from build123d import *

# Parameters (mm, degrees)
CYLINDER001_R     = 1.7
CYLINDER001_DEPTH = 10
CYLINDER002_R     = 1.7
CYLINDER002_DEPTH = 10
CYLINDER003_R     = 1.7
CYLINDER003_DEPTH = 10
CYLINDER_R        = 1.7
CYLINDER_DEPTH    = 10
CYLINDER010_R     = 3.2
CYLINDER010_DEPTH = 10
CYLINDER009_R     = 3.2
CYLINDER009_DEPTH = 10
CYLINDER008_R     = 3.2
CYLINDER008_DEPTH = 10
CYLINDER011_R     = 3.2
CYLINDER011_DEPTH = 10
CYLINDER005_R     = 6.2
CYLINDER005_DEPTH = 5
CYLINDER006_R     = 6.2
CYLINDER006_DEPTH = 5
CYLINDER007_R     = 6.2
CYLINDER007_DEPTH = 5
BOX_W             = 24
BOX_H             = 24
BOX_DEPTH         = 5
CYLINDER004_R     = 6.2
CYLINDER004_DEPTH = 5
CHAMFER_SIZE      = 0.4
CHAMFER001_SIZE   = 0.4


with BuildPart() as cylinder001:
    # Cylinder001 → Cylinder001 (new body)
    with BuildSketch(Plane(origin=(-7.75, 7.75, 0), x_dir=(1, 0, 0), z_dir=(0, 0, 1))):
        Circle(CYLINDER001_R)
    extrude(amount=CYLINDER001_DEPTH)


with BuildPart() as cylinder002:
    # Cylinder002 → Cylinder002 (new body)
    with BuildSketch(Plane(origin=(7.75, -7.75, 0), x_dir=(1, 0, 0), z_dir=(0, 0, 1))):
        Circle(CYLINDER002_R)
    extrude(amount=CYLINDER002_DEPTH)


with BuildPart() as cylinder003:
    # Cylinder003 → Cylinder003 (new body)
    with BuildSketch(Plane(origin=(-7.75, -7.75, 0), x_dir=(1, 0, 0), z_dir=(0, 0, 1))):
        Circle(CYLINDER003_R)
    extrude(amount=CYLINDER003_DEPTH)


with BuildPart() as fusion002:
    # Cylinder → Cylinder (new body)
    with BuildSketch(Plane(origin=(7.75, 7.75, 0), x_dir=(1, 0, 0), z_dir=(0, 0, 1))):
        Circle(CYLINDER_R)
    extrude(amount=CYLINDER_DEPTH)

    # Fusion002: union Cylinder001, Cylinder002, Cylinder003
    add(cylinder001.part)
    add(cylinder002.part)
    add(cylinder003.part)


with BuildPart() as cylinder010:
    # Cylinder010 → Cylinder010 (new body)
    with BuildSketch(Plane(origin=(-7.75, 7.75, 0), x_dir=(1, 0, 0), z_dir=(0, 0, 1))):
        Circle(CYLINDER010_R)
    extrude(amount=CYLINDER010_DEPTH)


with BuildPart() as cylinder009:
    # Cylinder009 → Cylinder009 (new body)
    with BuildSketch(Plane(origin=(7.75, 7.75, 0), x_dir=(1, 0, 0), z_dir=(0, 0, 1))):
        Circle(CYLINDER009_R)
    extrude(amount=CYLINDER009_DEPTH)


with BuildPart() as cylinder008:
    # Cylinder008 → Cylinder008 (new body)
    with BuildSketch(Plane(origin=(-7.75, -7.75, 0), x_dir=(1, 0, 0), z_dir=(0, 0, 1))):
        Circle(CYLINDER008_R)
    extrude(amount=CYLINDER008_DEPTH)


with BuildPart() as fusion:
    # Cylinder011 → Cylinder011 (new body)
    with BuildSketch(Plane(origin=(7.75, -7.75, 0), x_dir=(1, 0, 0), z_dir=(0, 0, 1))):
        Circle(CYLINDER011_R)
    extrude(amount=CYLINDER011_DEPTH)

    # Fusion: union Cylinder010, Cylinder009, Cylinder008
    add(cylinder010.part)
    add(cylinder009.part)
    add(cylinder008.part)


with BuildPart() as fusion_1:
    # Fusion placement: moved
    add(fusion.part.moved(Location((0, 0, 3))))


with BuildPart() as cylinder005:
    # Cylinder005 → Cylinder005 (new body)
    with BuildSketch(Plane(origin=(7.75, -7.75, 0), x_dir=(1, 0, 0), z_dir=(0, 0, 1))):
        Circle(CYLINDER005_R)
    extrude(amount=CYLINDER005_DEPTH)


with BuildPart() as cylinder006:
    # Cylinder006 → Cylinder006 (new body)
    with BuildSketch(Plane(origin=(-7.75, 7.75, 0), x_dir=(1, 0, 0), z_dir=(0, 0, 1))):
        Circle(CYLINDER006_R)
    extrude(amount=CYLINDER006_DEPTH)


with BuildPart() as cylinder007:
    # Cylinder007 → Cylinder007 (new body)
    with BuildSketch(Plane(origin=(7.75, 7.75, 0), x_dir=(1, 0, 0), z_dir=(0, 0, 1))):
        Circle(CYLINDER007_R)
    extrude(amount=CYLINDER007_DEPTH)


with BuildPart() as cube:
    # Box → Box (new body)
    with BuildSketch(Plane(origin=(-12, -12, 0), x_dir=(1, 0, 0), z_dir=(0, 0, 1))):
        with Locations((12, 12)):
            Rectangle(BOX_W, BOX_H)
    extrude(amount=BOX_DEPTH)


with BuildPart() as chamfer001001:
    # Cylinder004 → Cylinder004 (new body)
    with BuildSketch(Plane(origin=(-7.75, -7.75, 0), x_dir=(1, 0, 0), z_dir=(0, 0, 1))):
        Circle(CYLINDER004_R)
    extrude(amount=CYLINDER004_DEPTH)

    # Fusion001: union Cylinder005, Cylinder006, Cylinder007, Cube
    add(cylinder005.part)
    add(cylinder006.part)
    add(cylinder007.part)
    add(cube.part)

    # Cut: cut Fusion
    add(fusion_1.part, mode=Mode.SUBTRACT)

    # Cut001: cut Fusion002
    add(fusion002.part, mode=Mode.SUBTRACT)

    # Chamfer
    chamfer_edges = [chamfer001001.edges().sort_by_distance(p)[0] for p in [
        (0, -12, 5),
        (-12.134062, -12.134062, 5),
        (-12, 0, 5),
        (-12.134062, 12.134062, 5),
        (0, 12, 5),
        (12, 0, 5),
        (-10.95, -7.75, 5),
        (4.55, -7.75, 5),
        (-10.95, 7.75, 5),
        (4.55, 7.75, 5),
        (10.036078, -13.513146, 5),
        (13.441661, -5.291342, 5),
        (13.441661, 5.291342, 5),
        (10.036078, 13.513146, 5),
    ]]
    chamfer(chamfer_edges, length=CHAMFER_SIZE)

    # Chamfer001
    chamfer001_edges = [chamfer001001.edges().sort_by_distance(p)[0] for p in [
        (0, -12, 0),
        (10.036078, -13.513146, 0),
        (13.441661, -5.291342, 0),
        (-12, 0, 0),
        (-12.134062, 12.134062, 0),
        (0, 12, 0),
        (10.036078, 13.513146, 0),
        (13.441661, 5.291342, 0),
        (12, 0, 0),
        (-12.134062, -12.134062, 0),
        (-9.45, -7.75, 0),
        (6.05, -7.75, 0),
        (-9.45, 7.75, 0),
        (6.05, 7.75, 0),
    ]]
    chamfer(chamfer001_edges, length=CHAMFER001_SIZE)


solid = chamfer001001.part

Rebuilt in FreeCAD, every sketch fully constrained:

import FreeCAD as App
import Part
import Sketcher
from FreeCAD import Vector
Q = App.Units.Quantity


def edges_at(feature, points):
    """Names of the edges that pass closest to the given points."""
    edges = feature.Shape.Edges
    near = lambda p: min(range(len(edges)), key=lambda i: edges[i].distToShape(Part.Vertex(*p))[0])
    return sorted({f"Edge{near(p) + 1}" for p in points})


def add_polygon(sketch, points):
    """Adds a closed chain of lines whose ends are joined by coincident constraints."""
    first, n = sketch.GeometryCount, len(points)
    for a, b in zip(points, points[1:] + points[:1]):
        sketch.addGeometry(Part.LineSegment(App.Vector(*a, 0), App.Vector(*b, 0)), False)
    for i in range(n):
        sketch.addConstraint(Sketcher.Constraint("Coincident", first + i, 2, first + (i + 1) % n, 1))

doc = App.newDocument("Part")
params = doc.addObject("Spreadsheet::Sheet", "Params")
for row, (alias, value) in enumerate([
    ("sketch1_diameter", "3.4 mm"),
    ("pad1_length", "10 mm"),
    ("sketch2_diameter", "3.4 mm"),
    ("pad2_length", "10 mm"),
    ("sketch3_diameter", "3.4 mm"),
    ("pad3_length", "10 mm"),
    ("sketch4_diameter", "3.4 mm"),
    ("pad4_length", "10 mm"),
    ("sketch5_diameter", "6.4 mm"),
    ("pad5_length", "10 mm"),
    ("sketch6_diameter", "6.4 mm"),
    ("pad6_length", "10 mm"),
    ("sketch7_diameter", "6.4 mm"),
    ("pad7_length", "10 mm"),
    ("sketch8_diameter", "6.4 mm"),
    ("pad8_length", "10 mm"),
    ("sketch9_diameter", "12.4 mm"),
    ("pad9_length", "5 mm"),
    ("sketch10_diameter", "12.4 mm"),
    ("pad10_length", "5 mm"),
    ("sketch11_diameter", "12.4 mm"),
    ("pad11_length", "5 mm"),
    ("sketch12_width", "24 mm"),
    ("pad12_length", "5 mm"),
    ("sketch13_diameter", "12.4 mm"),
    ("pad13_length", "5 mm"),
    ("chamfer_size", "0.4 mm"),
    ("chamfer2_size", "0.4 mm"),
], start=1):
    params.set(f"A{row}", alias)
    params.set(f"B{row}", "=" + value)
    params.setAlias(f"B{row}", alias)

body = doc.addObject("PartDesign::Body", "Body")

sketch1 = body.newObject("Sketcher::SketchObject", "Sketch")
sketch1.AttachmentSupport = (doc.getObject("XY_Plane"), [""])
sketch1.MapMode = "FlatFace"
sketch1.addGeometry(Part.Circle(Vector(-7.8, 7.8, 0), Vector(0, 0, 1), 1.7), False)
sketch1.addConstraint([
    Sketcher.Constraint("Diameter", 0, Q("3.4 mm")),
    Sketcher.Constraint("DistanceX", 0, 3, -1, 1, Q("7.75 mm")),
    Sketcher.Constraint("DistanceY", -1, 1, 0, 3, Q("7.75 mm")),
])
sketch1.setExpression("Constraints[0]", "Params.sketch1_diameter")
pad1 = body.newObject("PartDesign::Pad", "Pad")
pad1.Profile = sketch1
pad1.setExpression("Length", "Params.pad1_length")
body2 = doc.addObject("PartDesign::Body", "Body001")

sketch2 = body2.newObject("Sketcher::SketchObject", "Sketch001")
sketch2.AttachmentSupport = (doc.getObject("XY_Plane001"), [""])
sketch2.MapMode = "FlatFace"
sketch2.addGeometry(Part.Circle(Vector(7.8, -7.8, 0), Vector(0, 0, 1), 1.7), False)
sketch2.addConstraint([
    Sketcher.Constraint("Diameter", 0, Q("3.4 mm")),
    Sketcher.Constraint("DistanceX", -1, 1, 0, 3, Q("7.75 mm")),
    Sketcher.Constraint("DistanceY", 0, 3, -1, 1, Q("7.75 mm")),
])
sketch2.setExpression("Constraints[0]", "Params.sketch2_diameter")
pad2 = body2.newObject("PartDesign::Pad", "Pad001")
pad2.Profile = sketch2
pad2.setExpression("Length", "Params.pad2_length")
body3 = doc.addObject("PartDesign::Body", "Body002")

sketch3 = body3.newObject("Sketcher::SketchObject", "Sketch002")
sketch3.AttachmentSupport = (doc.getObject("XY_Plane002"), [""])
sketch3.MapMode = "FlatFace"
sketch3.addGeometry(Part.Circle(Vector(-7.8, -7.8, 0), Vector(0, 0, 1), 1.7), False)
sketch3.addConstraint([
    Sketcher.Constraint("Diameter", 0, Q("3.4 mm")),
    Sketcher.Constraint("DistanceX", 0, 3, -1, 1, Q("7.75 mm")),
    Sketcher.Constraint("DistanceY", 0, 3, -1, 1, Q("7.75 mm")),
])
sketch3.setExpression("Constraints[0]", "Params.sketch3_diameter")
pad3 = body3.newObject("PartDesign::Pad", "Pad002")
pad3.Profile = sketch3
pad3.setExpression("Length", "Params.pad3_length")
body4 = doc.addObject("PartDesign::Body", "Body003")
body4.AllowCompound = True

sketch4 = body4.newObject("Sketcher::SketchObject", "Sketch003")
sketch4.AttachmentSupport = (doc.getObject("XY_Plane003"), [""])
sketch4.MapMode = "FlatFace"
sketch4.addGeometry(Part.Circle(Vector(7.8, 7.8, 0), Vector(0, 0, 1), 1.7), False)
sketch4.addConstraint([
    Sketcher.Constraint("Diameter", 0, Q("3.4 mm")),
    Sketcher.Constraint("DistanceX", -1, 1, 0, 3, Q("7.75 mm")),
    Sketcher.Constraint("DistanceY", -1, 1, 0, 3, Q("7.75 mm")),
])
sketch4.setExpression("Constraints[0]", "Params.sketch4_diameter")
pad4 = body4.newObject("PartDesign::Pad", "Pad003")
pad4.Profile = sketch4
pad4.setExpression("Length", "Params.pad4_length")
doc.recompute()

boolean = body4.newObject("PartDesign::Boolean", "Boolean")
boolean.Type = "Fuse"
boolean.addObjects([body])
doc.recompute()

boolean2 = body4.newObject("PartDesign::Boolean", "Boolean001")
boolean2.Type = "Fuse"
boolean2.addObjects([body2])
doc.recompute()

boolean3 = body4.newObject("PartDesign::Boolean", "Boolean002")
boolean3.Type = "Fuse"
boolean3.addObjects([body3])
body5 = doc.addObject("PartDesign::Body", "Body004")

sketch5 = body5.newObject("Sketcher::SketchObject", "Sketch004")
sketch5.AttachmentSupport = (doc.getObject("XY_Plane004"), [""])
sketch5.MapMode = "FlatFace"
sketch5.addGeometry(Part.Circle(Vector(-7.8, 7.8, 0), Vector(0, 0, 1), 3.2), False)
sketch5.addConstraint([
    Sketcher.Constraint("Diameter", 0, Q("6.4 mm")),
    Sketcher.Constraint("DistanceX", 0, 3, -1, 1, Q("7.75 mm")),
    Sketcher.Constraint("DistanceY", -1, 1, 0, 3, Q("7.75 mm")),
])
sketch5.setExpression("Constraints[0]", "Params.sketch5_diameter")
pad5 = body5.newObject("PartDesign::Pad", "Pad004")
pad5.Profile = sketch5
pad5.setExpression("Length", "Params.pad5_length")
body6 = doc.addObject("PartDesign::Body", "Body005")

sketch6 = body6.newObject("Sketcher::SketchObject", "Sketch005")
sketch6.AttachmentSupport = (doc.getObject("XY_Plane005"), [""])
sketch6.MapMode = "FlatFace"
sketch6.addGeometry(Part.Circle(Vector(7.8, 7.8, 0), Vector(0, 0, 1), 3.2), False)
sketch6.addConstraint([
    Sketcher.Constraint("Diameter", 0, Q("6.4 mm")),
    Sketcher.Constraint("DistanceX", -1, 1, 0, 3, Q("7.75 mm")),
    Sketcher.Constraint("DistanceY", -1, 1, 0, 3, Q("7.75 mm")),
])
sketch6.setExpression("Constraints[0]", "Params.sketch6_diameter")
pad6 = body6.newObject("PartDesign::Pad", "Pad005")
pad6.Profile = sketch6
pad6.setExpression("Length", "Params.pad6_length")
body7 = doc.addObject("PartDesign::Body", "Body006")

sketch7 = body7.newObject("Sketcher::SketchObject", "Sketch006")
sketch7.AttachmentSupport = (doc.getObject("XY_Plane006"), [""])
sketch7.MapMode = "FlatFace"
sketch7.addGeometry(Part.Circle(Vector(-7.8, -7.8, 0), Vector(0, 0, 1), 3.2), False)
sketch7.addConstraint([
    Sketcher.Constraint("Diameter", 0, Q("6.4 mm")),
    Sketcher.Constraint("DistanceX", 0, 3, -1, 1, Q("7.75 mm")),
    Sketcher.Constraint("DistanceY", 0, 3, -1, 1, Q("7.75 mm")),
])
sketch7.setExpression("Constraints[0]", "Params.sketch7_diameter")
pad7 = body7.newObject("PartDesign::Pad", "Pad006")
pad7.Profile = sketch7
pad7.setExpression("Length", "Params.pad7_length")
body8 = doc.addObject("PartDesign::Body", "Body007")
body8.AllowCompound = True

sketch8 = body8.newObject("Sketcher::SketchObject", "Sketch007")
sketch8.AttachmentSupport = (doc.getObject("XY_Plane007"), [""])
sketch8.MapMode = "FlatFace"
sketch8.addGeometry(Part.Circle(Vector(7.8, -7.8, 0), Vector(0, 0, 1), 3.2), False)
sketch8.addConstraint([
    Sketcher.Constraint("Diameter", 0, Q("6.4 mm")),
    Sketcher.Constraint("DistanceX", -1, 1, 0, 3, Q("7.75 mm")),
    Sketcher.Constraint("DistanceY", 0, 3, -1, 1, Q("7.75 mm")),
])
sketch8.setExpression("Constraints[0]", "Params.sketch8_diameter")
pad8 = body8.newObject("PartDesign::Pad", "Pad007")
pad8.Profile = sketch8
pad8.setExpression("Length", "Params.pad8_length")
doc.recompute()

boolean4 = body8.newObject("PartDesign::Boolean", "Boolean003")
boolean4.Type = "Fuse"
boolean4.addObjects([body5])
doc.recompute()

boolean5 = body8.newObject("PartDesign::Boolean", "Boolean004")
boolean5.Type = "Fuse"
boolean5.addObjects([body6])
doc.recompute()

boolean6 = body8.newObject("PartDesign::Boolean", "Boolean005")
boolean6.Type = "Fuse"
boolean6.addObjects([body7])
body9 = doc.addObject("PartDesign::Body", "Body008")
body9.AllowCompound = True
doc.recompute()

body8.Placement = App.Placement(Vector(0, 0, 3), App.Rotation(Vector(0, 0, 1), 0))
boolean7 = body9.newObject("PartDesign::Boolean", "Boolean006")
boolean7.Type = "Fuse"
boolean7.addObjects([body8])
body10 = doc.addObject("PartDesign::Body", "Body009")

sketch9 = body10.newObject("Sketcher::SketchObject", "Sketch008")
sketch9.AttachmentSupport = (doc.getObject("XY_Plane009"), [""])
sketch9.MapMode = "FlatFace"
sketch9.addGeometry(Part.Circle(Vector(8, -8, 0), Vector(0, 0, 1), 6), False)
sketch9.addConstraint([
    Sketcher.Constraint("Diameter", 0, Q("12.4 mm")),
    Sketcher.Constraint("DistanceX", -1, 1, 0, 3, Q("7.75 mm")),
    Sketcher.Constraint("DistanceY", 0, 3, -1, 1, Q("7.75 mm")),
])
sketch9.setExpression("Constraints[0]", "Params.sketch9_diameter")
pad9 = body10.newObject("PartDesign::Pad", "Pad008")
pad9.Profile = sketch9
pad9.setExpression("Length", "Params.pad9_length")
body11 = doc.addObject("PartDesign::Body", "Body010")

sketch10 = body11.newObject("Sketcher::SketchObject", "Sketch009")
sketch10.AttachmentSupport = (doc.getObject("XY_Plane010"), [""])
sketch10.MapMode = "FlatFace"
sketch10.addGeometry(Part.Circle(Vector(-8, 8, 0), Vector(0, 0, 1), 6), False)
sketch10.addConstraint([
    Sketcher.Constraint("Diameter", 0, Q("12.4 mm")),
    Sketcher.Constraint("DistanceX", 0, 3, -1, 1, Q("7.75 mm")),
    Sketcher.Constraint("DistanceY", -1, 1, 0, 3, Q("7.75 mm")),
])
sketch10.setExpression("Constraints[0]", "Params.sketch10_diameter")
pad10 = body11.newObject("PartDesign::Pad", "Pad009")
pad10.Profile = sketch10
pad10.setExpression("Length", "Params.pad10_length")
body12 = doc.addObject("PartDesign::Body", "Body011")

sketch11 = body12.newObject("Sketcher::SketchObject", "Sketch010")
sketch11.AttachmentSupport = (doc.getObject("XY_Plane011"), [""])
sketch11.MapMode = "FlatFace"
sketch11.addGeometry(Part.Circle(Vector(8, 8, 0), Vector(0, 0, 1), 6), False)
sketch11.addConstraint([
    Sketcher.Constraint("Diameter", 0, Q("12.4 mm")),
    Sketcher.Constraint("DistanceX", -1, 1, 0, 3, Q("7.75 mm")),
    Sketcher.Constraint("DistanceY", -1, 1, 0, 3, Q("7.75 mm")),
])
sketch11.setExpression("Constraints[0]", "Params.sketch11_diameter")
pad11 = body12.newObject("PartDesign::Pad", "Pad010")
pad11.Profile = sketch11
pad11.setExpression("Length", "Params.pad11_length")
body13 = doc.addObject("PartDesign::Body", "Body012")

sketch12 = body13.newObject("Sketcher::SketchObject", "Sketch011")
sketch12.AttachmentSupport = (doc.getObject("XY_Plane012"), [""])
sketch12.MapMode = "FlatFace"
add_polygon(sketch12, [(-12, 12), (-12, -12), (12, -12), (12, 12)])
sketch12.addConstraint([
    Sketcher.Constraint("Vertical", 0),
    Sketcher.Constraint("Horizontal", 1),
    Sketcher.Constraint("Vertical", 2),
    Sketcher.Constraint("Horizontal", 3),
    Sketcher.Constraint("Symmetric", 0, 2, 2, 2, -1, 1),
    Sketcher.Constraint("Equal", 3, 0),
    Sketcher.Constraint("DistanceX", 1, 1, 1, 2, Q("24 mm")),
])
sketch12.setExpression("Constraints[10]", "Params.sketch12_width")
pad12 = body13.newObject("PartDesign::Pad", "Pad011")
pad12.Profile = sketch12
pad12.setExpression("Length", "Params.pad12_length")
body14 = doc.addObject("PartDesign::Body", "Body013")
body14.AllowCompound = True

sketch13 = body14.newObject("Sketcher::SketchObject", "Sketch012")
sketch13.AttachmentSupport = (doc.getObject("XY_Plane013"), [""])
sketch13.MapMode = "FlatFace"
sketch13.addGeometry(Part.Circle(Vector(-8, -8, 0), Vector(0, 0, 1), 6), False)
sketch13.addConstraint([
    Sketcher.Constraint("Diameter", 0, Q("12.4 mm")),
    Sketcher.Constraint("DistanceX", 0, 3, -1, 1, Q("7.75 mm")),
    Sketcher.Constraint("DistanceY", 0, 3, -1, 1, Q("7.75 mm")),
])
sketch13.setExpression("Constraints[0]", "Params.sketch13_diameter")
pad13 = body14.newObject("PartDesign::Pad", "Pad012")
pad13.Profile = sketch13
pad13.setExpression("Length", "Params.pad13_length")
doc.recompute()

boolean8 = body14.newObject("PartDesign::Boolean", "Boolean007")
boolean8.Type = "Fuse"
boolean8.addObjects([body10])
doc.recompute()

boolean9 = body14.newObject("PartDesign::Boolean", "Boolean008")
boolean9.Type = "Fuse"
boolean9.addObjects([body11])
doc.recompute()

boolean10 = body14.newObject("PartDesign::Boolean", "Boolean009")
boolean10.Type = "Fuse"
boolean10.addObjects([body12])
doc.recompute()

boolean11 = body14.newObject("PartDesign::Boolean", "Boolean010")
boolean11.Type = "Fuse"
boolean11.addObjects([body13])
doc.recompute()

boolean12 = body14.newObject("PartDesign::Boolean", "Boolean011")
boolean12.Type = "Cut"
boolean12.addObjects([body9])
doc.recompute()

boolean13 = body14.newObject("PartDesign::Boolean", "Boolean012")
boolean13.Type = "Cut"
boolean13.addObjects([body4])
doc.recompute()

chamfer = body14.newObject("PartDesign::Chamfer", "Chamfer")
chamfer.Base = (boolean13, edges_at(boolean13, [
    (0, -12, 5),
    (-12.134, -12.134, 5),
    (-12, 0, 5),
    (-12.134, 12.134, 5),
    (0, 12, 5),
    (12, 0, 5),
    (-10.95, -7.75, 5),
    (4.55, -7.75, 5),
    (-10.95, 7.75, 5),
    (4.55, 7.75, 5),
    (12.134, -12.134, 5),
    (12.134, -12.134, 5),
    (12.134, 12.134, 5),
    (12.134, 12.134, 5),
]))
chamfer.setExpression("Size", "Params.chamfer_size")
doc.recompute()

chamfer2 = body14.newObject("PartDesign::Chamfer", "Chamfer001")
chamfer2.Base = (chamfer, edges_at(chamfer, [
    (0, -12, 0),
    (12.134, -12.134, 0),
    (12.134, -12.134, 0),
    (-12, 0, 0),
    (-12.134, 12.134, 0),
    (0, 12, 0),
    (12.134, 12.134, 0),
    (12.134, 12.134, 0),
    (12, 0, 0),
    (-12.134, -12.134, 0),
    (-9.45, -7.75, 0),
    (6.05, -7.75, 0),
    (-9.45, 7.75, 0),
    (6.05, 7.75, 0),
]))
chamfer2.setExpression("Size", "Params.chamfer2_size")

doc.recompute()
